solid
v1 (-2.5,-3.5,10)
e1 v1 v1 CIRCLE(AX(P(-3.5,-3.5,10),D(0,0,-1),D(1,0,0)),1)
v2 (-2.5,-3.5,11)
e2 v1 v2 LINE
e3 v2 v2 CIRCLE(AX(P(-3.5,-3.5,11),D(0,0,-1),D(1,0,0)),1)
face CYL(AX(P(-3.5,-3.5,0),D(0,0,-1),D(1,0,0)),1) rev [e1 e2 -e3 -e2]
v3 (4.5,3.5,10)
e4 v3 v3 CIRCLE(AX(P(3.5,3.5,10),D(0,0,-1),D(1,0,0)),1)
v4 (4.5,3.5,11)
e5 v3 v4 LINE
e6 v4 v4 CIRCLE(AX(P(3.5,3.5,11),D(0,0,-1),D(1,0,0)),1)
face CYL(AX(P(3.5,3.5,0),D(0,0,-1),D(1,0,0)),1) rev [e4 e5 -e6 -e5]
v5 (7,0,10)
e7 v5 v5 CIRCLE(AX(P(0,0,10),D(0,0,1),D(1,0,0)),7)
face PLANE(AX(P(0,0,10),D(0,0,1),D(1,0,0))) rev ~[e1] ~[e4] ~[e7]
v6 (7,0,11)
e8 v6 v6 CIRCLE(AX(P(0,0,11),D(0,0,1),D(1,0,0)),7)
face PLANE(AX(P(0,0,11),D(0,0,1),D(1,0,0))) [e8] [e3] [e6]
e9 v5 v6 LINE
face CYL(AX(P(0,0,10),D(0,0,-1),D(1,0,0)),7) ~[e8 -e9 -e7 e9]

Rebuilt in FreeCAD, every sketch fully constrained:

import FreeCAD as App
import Part
import Sketcher
from FreeCAD import Vector
Q = App.Units.Quantity

doc = App.newDocument("Part")
body = doc.addObject("PartDesign::Body", "Body")

# Sketch on XY plane
sketch1 = body.newObject("Sketcher::SketchObject", "Sketch")
sketch1.AttachmentSupport = (doc.getObject("XY_Plane"), [""])
sketch1.MapMode = "FlatFace"
sketch1.addGeometry(Part.Circle(Vector(-3.5, -3.5, 0), Vector(0, 0, 1), 1), False)
sketch1.addConstraint([
    Sketcher.Constraint("Diameter", 0, Q("2 mm")),
    Sketcher.Constraint("DistanceX", 0, 3, -1, 1, Q("3.5 mm")),
    Sketcher.Constraint("DistanceY", 0, 3, -1, 1, Q("3.5 mm")),
])
pad1 = body.newObject("PartDesign::Pad", "Pad")
pad1.Profile = sketch1
pad1.Length = 20
body2 = doc.addObject("PartDesign::Body", "Body001")
body2.AllowCompound = True

# Sketch on XY plane
sketch2 = body2.newObject("Sketcher::SketchObject", "Sketch001")
sketch2.AttachmentSupport = (doc.getObject("XY_Plane001"), [""])
sketch2.MapMode = "FlatFace"
sketch2.addGeometry(Part.Circle(Vector(3.5, 3.5, 0), Vector(0, 0, 1), 1), False)
sketch2.addConstraint([
    Sketcher.Constraint("Diameter", 0, Q("2 mm")),
    Sketcher.Constraint("DistanceX", -1, 1, 0, 3, Q("3.5 mm")),
    Sketcher.Constraint("DistanceY", -1, 1, 0, 3, Q("3.5 mm")),
])
pad2 = body2.newObject("PartDesign::Pad", "Pad001")
pad2.Profile = sketch2
pad2.Length = 20
doc.recompute()

boolean = body2.newObject("PartDesign::Boolean", "Boolean")
boolean.Type = "Fuse"
boolean.addObjects([body])
body3 = doc.addObject("PartDesign::Body", "Body002")

# Sketch on XY plane
sketch3 = body3.newObject("Sketcher::SketchObject", "Sketch002")
sketch3.AttachmentSupport = (doc.getObject("XY_Plane002"), [""])
sketch3.MapMode = "FlatFace"
sketch3.AttachmentOffset = App.Placement(Vector(0, 0, 10), App.Rotation())
sketch3.addGeometry(Part.Circle(Vector(0, 0, 0), Vector(0, 0, 1), 7), False)
sketch3.addConstraint([
    Sketcher.Constraint("Coincident", 0, 3, -1, 1),
    Sketcher.Constraint("Diameter", 0, Q("14 mm")),
])
pad3 = body3.newObject("PartDesign::Pad", "Pad002")
pad3.Profile = sketch3
pad3.Length = 1
doc.recompute()

boolean2 = body3.newObject("PartDesign::Boolean", "Boolean001")
boolean2.Type = "Cut"
boolean2.addObjects([body2])

doc.recompute()
